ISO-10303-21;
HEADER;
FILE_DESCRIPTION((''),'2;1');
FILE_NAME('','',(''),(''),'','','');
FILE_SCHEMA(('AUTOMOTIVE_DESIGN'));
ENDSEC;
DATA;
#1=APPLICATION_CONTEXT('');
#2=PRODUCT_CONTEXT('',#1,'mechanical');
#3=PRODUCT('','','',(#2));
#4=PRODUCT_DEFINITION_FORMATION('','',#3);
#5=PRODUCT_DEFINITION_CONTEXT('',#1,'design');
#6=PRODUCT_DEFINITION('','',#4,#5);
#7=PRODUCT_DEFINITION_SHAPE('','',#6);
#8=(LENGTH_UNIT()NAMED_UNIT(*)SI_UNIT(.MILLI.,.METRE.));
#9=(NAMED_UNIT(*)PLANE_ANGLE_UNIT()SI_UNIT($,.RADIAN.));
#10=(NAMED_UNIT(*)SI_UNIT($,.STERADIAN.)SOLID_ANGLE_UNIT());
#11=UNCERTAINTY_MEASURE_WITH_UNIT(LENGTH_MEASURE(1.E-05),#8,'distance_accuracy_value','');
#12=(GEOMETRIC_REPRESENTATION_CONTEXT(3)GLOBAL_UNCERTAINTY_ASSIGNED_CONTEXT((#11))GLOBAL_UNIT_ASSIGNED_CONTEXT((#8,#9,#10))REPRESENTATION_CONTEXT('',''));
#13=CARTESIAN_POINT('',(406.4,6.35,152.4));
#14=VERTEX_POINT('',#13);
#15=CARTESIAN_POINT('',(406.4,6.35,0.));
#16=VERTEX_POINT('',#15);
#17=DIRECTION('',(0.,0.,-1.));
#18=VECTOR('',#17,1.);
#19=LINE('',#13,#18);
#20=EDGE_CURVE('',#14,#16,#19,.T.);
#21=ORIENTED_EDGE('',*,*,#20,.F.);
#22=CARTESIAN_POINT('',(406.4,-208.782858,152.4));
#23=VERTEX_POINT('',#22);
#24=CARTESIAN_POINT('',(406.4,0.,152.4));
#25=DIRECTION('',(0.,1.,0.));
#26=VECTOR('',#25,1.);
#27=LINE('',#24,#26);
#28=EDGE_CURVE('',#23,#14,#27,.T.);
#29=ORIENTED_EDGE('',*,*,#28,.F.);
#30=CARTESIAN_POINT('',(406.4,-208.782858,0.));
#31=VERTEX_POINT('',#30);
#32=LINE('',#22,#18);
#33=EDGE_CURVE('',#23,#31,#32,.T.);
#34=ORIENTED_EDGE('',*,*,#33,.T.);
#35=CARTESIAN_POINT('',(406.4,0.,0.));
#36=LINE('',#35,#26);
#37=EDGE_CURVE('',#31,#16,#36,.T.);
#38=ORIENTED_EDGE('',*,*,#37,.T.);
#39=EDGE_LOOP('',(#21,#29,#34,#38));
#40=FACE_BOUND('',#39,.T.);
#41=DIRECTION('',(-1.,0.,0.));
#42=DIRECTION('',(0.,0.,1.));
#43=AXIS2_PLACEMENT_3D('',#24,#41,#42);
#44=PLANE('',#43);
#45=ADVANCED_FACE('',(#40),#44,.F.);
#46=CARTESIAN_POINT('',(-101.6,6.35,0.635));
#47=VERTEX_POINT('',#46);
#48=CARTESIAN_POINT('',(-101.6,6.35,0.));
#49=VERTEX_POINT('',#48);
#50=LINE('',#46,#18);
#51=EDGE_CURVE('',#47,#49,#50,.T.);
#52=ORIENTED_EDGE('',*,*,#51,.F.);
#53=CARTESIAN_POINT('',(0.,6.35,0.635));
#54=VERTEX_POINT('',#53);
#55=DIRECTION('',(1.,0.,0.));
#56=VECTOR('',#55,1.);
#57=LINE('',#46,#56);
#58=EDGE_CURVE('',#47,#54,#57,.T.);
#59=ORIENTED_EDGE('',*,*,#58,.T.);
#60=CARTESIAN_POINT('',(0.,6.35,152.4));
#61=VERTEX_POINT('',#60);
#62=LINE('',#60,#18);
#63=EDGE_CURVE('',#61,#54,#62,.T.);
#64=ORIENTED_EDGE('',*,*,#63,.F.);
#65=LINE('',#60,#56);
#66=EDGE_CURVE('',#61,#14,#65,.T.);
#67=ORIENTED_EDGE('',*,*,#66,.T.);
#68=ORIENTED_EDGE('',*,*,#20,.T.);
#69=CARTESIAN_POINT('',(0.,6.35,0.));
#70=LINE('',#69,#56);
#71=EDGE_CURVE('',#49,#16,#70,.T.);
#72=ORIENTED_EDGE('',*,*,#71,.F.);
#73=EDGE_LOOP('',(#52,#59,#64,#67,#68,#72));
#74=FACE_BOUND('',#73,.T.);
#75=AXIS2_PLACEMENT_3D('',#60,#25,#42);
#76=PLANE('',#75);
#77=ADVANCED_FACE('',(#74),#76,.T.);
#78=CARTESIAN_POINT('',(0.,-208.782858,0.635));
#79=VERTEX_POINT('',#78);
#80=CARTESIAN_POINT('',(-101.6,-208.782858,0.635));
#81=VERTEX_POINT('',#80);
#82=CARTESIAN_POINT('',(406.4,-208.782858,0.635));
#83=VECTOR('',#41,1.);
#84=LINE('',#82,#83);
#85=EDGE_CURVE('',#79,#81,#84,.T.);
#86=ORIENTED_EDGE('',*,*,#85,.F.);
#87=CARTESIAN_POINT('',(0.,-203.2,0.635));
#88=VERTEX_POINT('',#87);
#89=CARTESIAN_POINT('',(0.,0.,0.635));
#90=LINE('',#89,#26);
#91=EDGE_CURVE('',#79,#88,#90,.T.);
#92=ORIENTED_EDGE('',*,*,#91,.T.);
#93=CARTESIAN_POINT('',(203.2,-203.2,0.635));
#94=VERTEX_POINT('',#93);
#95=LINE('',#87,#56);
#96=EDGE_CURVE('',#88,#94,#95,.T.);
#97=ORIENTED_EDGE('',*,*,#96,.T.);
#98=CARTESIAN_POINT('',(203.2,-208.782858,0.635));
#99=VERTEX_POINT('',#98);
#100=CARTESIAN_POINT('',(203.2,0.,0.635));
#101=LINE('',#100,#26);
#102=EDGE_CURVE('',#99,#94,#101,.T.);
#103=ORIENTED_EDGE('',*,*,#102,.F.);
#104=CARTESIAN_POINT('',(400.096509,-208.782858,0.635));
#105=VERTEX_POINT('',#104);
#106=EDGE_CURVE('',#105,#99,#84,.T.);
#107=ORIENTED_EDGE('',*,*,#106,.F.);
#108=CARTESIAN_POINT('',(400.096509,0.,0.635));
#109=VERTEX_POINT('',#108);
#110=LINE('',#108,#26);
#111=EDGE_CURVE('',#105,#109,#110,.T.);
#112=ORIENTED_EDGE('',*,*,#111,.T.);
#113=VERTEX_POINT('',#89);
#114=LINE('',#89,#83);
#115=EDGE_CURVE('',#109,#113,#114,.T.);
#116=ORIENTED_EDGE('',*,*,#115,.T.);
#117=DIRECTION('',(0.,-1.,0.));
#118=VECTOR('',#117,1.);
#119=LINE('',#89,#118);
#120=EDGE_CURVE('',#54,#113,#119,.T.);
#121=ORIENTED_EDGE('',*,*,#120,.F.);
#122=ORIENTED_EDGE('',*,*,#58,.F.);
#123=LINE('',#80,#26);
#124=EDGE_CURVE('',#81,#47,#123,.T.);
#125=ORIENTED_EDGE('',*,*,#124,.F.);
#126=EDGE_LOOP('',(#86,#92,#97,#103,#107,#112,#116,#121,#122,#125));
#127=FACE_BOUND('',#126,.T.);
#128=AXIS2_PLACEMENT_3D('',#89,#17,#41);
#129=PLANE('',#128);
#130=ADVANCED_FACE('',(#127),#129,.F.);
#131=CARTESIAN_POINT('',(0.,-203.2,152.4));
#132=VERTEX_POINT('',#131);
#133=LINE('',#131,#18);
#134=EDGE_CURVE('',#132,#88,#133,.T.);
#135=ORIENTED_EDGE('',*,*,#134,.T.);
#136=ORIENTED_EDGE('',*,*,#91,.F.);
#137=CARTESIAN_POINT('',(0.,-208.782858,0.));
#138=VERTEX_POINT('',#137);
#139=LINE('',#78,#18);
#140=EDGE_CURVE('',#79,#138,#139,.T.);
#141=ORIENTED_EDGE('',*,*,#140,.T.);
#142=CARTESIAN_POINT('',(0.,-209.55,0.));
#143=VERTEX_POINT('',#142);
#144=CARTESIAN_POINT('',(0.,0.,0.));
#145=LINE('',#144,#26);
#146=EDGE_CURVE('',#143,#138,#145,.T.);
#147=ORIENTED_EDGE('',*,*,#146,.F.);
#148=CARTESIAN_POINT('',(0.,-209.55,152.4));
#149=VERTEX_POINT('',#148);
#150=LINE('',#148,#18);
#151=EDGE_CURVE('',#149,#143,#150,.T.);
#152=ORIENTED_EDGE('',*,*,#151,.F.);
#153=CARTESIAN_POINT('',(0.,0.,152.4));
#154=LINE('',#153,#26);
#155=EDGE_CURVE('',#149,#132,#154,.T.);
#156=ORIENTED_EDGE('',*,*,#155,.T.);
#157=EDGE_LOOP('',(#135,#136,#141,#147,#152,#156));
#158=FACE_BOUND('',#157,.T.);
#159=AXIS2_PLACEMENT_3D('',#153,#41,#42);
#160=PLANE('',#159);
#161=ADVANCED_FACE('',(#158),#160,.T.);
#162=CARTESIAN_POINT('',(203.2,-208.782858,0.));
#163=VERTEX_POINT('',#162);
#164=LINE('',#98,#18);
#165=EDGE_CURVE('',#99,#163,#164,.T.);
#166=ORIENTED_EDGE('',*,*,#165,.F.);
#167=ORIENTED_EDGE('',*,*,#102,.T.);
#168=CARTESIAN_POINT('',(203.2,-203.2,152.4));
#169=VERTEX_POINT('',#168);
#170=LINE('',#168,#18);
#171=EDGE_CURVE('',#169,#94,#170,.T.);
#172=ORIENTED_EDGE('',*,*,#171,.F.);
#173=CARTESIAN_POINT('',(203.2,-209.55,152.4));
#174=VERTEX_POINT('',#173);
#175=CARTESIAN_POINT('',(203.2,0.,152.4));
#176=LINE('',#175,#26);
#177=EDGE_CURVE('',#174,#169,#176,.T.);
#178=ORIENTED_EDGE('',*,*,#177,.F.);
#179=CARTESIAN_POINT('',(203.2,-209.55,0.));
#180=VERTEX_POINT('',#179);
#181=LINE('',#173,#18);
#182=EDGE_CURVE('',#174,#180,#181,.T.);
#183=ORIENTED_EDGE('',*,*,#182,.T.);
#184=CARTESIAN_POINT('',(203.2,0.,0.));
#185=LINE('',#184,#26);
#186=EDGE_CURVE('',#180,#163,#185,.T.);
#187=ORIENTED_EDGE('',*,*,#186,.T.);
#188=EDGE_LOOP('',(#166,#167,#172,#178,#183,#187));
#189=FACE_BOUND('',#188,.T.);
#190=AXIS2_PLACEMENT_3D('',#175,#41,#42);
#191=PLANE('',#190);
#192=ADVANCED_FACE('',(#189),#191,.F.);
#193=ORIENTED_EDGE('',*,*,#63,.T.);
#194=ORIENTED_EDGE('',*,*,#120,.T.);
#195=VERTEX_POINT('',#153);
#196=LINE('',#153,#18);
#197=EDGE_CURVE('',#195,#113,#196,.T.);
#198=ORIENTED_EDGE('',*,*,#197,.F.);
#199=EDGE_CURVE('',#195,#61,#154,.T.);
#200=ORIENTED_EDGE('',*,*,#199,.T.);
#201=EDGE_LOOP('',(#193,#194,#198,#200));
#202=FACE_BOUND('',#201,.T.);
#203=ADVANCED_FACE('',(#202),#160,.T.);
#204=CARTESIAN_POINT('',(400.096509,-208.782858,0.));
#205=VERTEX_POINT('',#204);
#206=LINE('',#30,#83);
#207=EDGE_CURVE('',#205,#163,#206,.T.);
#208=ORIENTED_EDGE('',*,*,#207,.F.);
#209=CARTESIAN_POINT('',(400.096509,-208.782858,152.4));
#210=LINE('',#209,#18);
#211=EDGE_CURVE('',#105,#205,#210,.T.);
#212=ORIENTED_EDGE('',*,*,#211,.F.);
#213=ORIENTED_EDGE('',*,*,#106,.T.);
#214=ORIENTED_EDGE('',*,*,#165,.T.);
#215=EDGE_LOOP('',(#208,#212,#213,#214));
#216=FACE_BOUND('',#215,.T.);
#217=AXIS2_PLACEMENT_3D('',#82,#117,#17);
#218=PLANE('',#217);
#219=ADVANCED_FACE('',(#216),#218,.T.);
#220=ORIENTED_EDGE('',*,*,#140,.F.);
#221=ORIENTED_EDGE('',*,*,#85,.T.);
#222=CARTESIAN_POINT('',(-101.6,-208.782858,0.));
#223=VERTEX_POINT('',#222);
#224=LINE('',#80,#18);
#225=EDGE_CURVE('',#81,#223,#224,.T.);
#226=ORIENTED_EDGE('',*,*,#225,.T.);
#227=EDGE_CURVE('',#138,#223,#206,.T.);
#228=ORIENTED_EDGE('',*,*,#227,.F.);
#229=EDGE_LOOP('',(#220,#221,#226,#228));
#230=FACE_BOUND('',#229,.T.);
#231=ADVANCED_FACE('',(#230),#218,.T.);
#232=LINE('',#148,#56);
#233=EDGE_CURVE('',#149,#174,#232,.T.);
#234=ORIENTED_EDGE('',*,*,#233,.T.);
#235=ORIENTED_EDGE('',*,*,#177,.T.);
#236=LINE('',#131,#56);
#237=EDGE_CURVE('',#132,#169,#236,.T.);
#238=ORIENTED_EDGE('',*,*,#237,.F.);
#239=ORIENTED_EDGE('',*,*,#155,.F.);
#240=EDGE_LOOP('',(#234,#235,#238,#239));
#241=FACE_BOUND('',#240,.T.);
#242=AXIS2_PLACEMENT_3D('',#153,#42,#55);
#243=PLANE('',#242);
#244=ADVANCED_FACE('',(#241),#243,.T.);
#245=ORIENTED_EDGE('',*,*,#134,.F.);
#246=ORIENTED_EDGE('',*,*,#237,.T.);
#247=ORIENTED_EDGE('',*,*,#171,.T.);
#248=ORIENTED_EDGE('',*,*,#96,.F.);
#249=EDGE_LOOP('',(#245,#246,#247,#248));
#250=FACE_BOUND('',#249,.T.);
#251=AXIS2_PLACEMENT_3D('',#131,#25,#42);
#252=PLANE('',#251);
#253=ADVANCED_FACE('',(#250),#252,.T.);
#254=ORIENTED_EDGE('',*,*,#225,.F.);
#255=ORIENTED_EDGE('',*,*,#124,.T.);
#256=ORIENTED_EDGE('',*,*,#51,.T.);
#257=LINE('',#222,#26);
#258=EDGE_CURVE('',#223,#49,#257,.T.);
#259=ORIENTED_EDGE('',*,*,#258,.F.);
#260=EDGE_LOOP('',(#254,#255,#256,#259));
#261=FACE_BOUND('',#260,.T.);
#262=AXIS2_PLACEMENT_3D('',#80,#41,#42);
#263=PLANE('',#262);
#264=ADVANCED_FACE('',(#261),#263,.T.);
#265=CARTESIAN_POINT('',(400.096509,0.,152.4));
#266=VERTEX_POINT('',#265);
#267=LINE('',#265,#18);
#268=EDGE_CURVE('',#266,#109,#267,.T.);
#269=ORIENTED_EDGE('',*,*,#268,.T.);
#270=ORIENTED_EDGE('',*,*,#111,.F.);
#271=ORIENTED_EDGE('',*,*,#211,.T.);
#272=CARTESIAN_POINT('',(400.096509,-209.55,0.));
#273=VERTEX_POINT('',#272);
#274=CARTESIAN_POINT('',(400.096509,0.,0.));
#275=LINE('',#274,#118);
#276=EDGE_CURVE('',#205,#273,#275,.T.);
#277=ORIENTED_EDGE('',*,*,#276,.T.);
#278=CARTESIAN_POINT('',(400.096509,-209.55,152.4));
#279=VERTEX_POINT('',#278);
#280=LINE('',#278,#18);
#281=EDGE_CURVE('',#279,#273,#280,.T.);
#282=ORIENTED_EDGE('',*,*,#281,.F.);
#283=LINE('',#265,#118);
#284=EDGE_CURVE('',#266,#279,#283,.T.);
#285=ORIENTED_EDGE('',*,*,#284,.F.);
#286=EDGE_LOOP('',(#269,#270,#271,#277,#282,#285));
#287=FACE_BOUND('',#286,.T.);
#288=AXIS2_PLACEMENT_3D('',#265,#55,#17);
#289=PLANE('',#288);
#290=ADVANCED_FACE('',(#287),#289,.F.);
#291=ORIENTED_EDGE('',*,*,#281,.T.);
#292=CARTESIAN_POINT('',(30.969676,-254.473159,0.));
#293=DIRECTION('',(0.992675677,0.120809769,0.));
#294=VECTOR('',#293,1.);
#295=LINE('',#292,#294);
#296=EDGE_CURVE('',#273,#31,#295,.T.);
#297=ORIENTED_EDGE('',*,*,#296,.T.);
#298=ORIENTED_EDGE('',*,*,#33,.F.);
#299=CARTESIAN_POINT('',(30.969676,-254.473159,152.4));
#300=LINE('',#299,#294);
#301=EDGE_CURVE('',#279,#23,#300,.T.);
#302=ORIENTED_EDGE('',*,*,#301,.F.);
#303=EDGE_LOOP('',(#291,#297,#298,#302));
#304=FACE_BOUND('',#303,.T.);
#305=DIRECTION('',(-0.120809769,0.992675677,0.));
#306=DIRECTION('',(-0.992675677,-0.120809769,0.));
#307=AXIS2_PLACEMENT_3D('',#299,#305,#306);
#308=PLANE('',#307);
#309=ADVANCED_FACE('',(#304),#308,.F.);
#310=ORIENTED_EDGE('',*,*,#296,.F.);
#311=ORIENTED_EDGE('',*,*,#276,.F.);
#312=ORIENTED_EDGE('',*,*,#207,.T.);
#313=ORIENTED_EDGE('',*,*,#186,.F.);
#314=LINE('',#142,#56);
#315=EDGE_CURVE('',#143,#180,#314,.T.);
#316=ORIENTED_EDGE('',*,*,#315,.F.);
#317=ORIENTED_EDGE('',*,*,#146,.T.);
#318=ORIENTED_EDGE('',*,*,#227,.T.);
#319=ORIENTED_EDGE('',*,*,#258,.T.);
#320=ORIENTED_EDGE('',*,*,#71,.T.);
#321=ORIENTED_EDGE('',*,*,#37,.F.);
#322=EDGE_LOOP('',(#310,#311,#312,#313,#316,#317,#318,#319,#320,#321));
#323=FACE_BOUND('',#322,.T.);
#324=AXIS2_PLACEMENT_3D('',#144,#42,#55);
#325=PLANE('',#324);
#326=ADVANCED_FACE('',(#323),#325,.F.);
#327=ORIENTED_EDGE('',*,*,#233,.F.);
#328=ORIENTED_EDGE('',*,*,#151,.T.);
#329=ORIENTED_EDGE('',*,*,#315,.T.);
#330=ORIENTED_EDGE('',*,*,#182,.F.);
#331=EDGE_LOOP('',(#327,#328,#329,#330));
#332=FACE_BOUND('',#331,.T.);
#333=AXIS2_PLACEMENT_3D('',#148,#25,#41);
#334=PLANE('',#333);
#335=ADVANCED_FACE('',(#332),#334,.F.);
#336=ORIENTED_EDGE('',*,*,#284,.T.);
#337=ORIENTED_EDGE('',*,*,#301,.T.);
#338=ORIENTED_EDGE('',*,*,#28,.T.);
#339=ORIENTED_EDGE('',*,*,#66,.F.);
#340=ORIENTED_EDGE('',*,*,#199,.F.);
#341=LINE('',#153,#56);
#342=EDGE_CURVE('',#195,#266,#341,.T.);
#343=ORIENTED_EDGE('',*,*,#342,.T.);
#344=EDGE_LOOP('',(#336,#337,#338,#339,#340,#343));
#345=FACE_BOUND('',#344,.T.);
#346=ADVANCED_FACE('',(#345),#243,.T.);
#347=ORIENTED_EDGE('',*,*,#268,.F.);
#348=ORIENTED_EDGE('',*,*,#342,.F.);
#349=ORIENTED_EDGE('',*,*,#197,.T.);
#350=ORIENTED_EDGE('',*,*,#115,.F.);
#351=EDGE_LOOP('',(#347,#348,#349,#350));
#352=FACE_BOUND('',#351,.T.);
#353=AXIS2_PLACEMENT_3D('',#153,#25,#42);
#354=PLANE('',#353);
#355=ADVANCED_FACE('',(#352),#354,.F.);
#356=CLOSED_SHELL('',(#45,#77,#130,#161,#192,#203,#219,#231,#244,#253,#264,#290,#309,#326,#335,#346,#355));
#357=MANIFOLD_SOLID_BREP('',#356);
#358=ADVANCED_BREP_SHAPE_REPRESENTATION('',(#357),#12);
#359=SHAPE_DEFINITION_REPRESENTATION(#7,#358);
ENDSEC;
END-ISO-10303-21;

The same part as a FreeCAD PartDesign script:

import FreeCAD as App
import Part
import Sketcher

V = App.Vector
Q = App.Units.Quantity


def add_polygon(sketch, points):
    """Adds a closed chain of lines whose ends are joined by coincident constraints."""
    first, n = sketch.GeometryCount, len(points)
    for a, b in zip(points, points[1:] + points[:1]):
        sketch.addGeometry(Part.LineSegment(App.Vector(*a, 0), App.Vector(*b, 0)), False)
    for i in range(n):
        sketch.addConstraint(Sketcher.Constraint("Coincident", first + i, 2, first + (i + 1) % n, 1))

doc = App.newDocument("Part")
body = doc.addObject("PartDesign::Body", "Body")

sketch1 = body.newObject("Sketcher::SketchObject", "Sketch")
sketch1.AttachmentSupport = (doc.getObject("XY_Plane"), [""])
sketch1.MapMode = "FlatFace"
add_polygon(sketch1, [(400, -210), (406, -209), (406, 6), (0, 6), (0, 0), (400, 0)])
sketch1.addConstraint([
    Sketcher.Constraint("Vertical", 1),
    Sketcher.Constraint("Horizontal", 2),
    Sketcher.Constraint("Vertical", 3),
    Sketcher.Constraint("Horizontal", 4),
    Sketcher.Constraint("Vertical", 5),
    Sketcher.Constraint("Coincident", 3, 2, -1, 1),
    Sketcher.Constraint("DistanceX", 2, 2, 2, 1, Q("16 in")),
    Sketcher.Constraint("DistanceY", 3, 2, 3, 1, Q("0.25 in")),
    Sketcher.Constraint("DistanceY", 5, 2, 5, 1, Q("8.25 in")),
    Sketcher.Constraint("Distance", 0, Q("0.25 in")),
    Sketcher.Constraint("DistanceX", 4, 1, 4, 2, Q("400.096509 mm")),
])
pad1 = body.newObject("PartDesign::Pad", "Pad")
pad1.Profile = sketch1
pad1.Length = Q("6 in")
body2 = doc.addObject("PartDesign::Body", "Body001")

sketch2 = body2.newObject("Sketcher::SketchObject", "Sketch001")
sketch2.AttachmentSupport = (doc.getObject("XY_Plane001"), [""])
sketch2.MapMode = "FlatFace"
add_polygon(sketch2, [(0, -203), (0, -210), (203, -210), (203, -203)])
sketch2.addConstraint([
    Sketcher.Constraint("Vertical", 0),
    Sketcher.Constraint("Horizontal", 1),
    Sketcher.Constraint("Vertical", 2),
    Sketcher.Constraint("Horizontal", 3),
    Sketcher.Constraint("PointOnObject", 0, 2, -2),
    Sketcher.Constraint("DistanceX", 1, 1, 1, 2, Q("8 in")),
    Sketcher.Constraint("DistanceY", 2, 2, -1, 1, Q("8 in")),
    Sketcher.Constraint("DistanceY", 0, 2, 0, 1, Q("0.25 in")),
])
pad2 = body2.newObject("PartDesign::Pad", "Pad001")
pad2.Profile = sketch2
pad2.Length = Q("6 in")
body.AllowCompound = True
doc.recompute()

boolean = body.newObject("PartDesign::Boolean", "Boolean")
boolean.Type = "Fuse"
boolean.addObjects([body2])

sketch3 = body.newObject("Sketcher::SketchObject", "Sketch002")
sketch3.AttachmentSupport = (doc.getObject("XY_Plane"), [""])
sketch3.MapMode = "FlatFace"
add_polygon(sketch3, [(406, 6), (406, -209), (-102, -209), (-102, 6)])
sketch3.addConstraint([
    Sketcher.Constraint("Vertical", 0),
    Sketcher.Constraint("Horizontal", 1),
    Sketcher.Constraint("Vertical", 2),
    Sketcher.Constraint("Horizontal", 3),
    Sketcher.Constraint("DistanceX", 1, 2, 1, 1, Q("20 in")),
    Sketcher.Constraint("DistanceX", -1, 1, 0, 2, Q("16 in")),
    Sketcher.Constraint("DistanceY", -1, 1, 2, 2, Q("0.25 in")),
    Sketcher.Constraint("DistanceY", 0, 2, 0, 1, Q("215.132858 mm")),
])
pad3 = body.newObject("PartDesign::Pad", "Pad002")
pad3.Profile = sketch3
pad3.Length = Q("0.025 in")

doc.recompute()
